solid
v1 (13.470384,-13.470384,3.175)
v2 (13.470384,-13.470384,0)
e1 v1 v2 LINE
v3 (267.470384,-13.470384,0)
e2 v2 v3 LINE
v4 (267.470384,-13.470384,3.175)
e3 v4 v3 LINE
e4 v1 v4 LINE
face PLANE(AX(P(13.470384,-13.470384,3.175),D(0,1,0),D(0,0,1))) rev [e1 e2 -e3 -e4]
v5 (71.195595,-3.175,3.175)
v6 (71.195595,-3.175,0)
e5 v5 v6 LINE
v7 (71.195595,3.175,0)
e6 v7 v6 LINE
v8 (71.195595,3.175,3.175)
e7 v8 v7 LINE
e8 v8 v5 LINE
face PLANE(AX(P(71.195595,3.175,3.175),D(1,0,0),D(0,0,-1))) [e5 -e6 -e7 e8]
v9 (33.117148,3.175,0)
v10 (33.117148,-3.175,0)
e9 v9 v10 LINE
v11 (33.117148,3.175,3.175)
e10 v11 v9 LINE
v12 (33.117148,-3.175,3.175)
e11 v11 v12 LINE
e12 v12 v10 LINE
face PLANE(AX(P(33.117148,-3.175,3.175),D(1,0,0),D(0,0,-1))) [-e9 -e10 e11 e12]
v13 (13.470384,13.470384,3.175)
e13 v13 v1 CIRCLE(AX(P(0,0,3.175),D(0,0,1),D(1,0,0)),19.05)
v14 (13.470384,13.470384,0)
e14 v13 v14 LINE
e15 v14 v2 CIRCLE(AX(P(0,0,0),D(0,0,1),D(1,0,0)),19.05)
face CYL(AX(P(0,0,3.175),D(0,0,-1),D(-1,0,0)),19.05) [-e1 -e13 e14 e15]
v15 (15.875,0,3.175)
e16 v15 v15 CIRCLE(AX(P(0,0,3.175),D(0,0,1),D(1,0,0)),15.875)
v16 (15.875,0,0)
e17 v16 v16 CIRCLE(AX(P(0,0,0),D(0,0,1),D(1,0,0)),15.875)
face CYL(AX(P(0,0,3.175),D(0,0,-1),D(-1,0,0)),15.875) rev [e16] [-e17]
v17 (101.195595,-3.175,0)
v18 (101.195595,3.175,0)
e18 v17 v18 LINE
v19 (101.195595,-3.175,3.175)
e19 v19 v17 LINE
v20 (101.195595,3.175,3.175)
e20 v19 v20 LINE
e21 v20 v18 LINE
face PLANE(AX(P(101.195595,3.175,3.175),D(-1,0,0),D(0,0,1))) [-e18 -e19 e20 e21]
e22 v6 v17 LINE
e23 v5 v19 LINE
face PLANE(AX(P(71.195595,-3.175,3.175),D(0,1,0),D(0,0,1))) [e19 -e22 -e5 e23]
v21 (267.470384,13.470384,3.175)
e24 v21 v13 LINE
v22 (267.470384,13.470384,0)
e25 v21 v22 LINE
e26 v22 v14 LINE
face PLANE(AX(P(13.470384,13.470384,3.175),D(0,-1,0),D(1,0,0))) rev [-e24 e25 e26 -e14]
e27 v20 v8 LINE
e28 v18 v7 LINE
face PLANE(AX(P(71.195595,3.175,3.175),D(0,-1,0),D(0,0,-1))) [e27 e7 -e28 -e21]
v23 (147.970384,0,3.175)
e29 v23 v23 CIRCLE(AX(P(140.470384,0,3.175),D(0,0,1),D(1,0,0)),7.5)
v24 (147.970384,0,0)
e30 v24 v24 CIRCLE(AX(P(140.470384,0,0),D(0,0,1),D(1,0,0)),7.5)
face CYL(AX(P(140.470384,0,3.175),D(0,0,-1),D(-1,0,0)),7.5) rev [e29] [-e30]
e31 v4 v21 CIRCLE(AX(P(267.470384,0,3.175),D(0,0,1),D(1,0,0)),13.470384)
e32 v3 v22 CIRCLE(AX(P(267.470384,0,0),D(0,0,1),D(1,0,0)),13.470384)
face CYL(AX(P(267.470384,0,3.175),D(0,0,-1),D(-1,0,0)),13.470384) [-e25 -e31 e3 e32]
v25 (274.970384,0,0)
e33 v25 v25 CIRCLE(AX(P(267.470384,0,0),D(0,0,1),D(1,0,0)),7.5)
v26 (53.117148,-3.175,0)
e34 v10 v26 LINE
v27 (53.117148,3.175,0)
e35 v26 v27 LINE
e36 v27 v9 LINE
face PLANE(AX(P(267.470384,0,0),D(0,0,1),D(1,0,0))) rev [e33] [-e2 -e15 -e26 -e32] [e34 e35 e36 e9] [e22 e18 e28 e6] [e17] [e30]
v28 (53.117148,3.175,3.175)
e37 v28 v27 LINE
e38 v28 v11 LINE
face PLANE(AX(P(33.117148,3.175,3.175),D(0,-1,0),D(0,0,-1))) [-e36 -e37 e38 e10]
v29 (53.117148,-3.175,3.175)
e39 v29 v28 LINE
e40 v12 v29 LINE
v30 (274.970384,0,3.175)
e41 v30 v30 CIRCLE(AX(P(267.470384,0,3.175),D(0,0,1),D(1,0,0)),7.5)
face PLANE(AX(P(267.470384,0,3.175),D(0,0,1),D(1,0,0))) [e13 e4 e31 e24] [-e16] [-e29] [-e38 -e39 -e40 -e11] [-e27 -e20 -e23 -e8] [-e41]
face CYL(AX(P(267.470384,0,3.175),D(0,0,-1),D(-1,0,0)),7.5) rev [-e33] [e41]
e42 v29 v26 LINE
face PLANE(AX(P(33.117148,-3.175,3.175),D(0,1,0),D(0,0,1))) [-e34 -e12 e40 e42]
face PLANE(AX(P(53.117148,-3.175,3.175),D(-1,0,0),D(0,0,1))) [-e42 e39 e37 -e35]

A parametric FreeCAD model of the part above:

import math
import FreeCAD as App
import Part
import Sketcher
Q = App.Units.Quantity


def add_polygon(sketch, points):
    """Adds a closed chain of lines whose ends are joined by coincident constraints."""
    first, n = sketch.GeometryCount, len(points)
    for a, b in zip(points, points[1:] + points[:1]):
        sketch.addGeometry(Part.LineSegment(App.Vector(*a, 0), App.Vector(*b, 0)), False)
    for i in range(n):
        sketch.addConstraint(Sketcher.Constraint("Coincident", first + i, 2, first + (i + 1) % n, 1))

doc = App.newDocument("Part")
body = doc.addObject("PartDesign::Body", "Body")

# Sketch on XY plane
sketch1 = body.newObject("Sketcher::SketchObject", "Sketch")
sketch1.AttachmentSupport = (doc.getObject("XY_Plane"), [""])
sketch1.MapMode = "FlatFace"
sketch1.addGeometry(Part.LineSegment(App.Vector(267, 13, 0), App.Vector(13, 13, 0)), False)  # 0
sketch1.addGeometry(Part.ArcOfCircle(Part.Circle(App.Vector(0, 0, 0), App.Vector(0, 0, 1), 19), math.radians(45), math.radians(315)), False)  # 1
sketch1.addGeometry(Part.LineSegment(App.Vector(13, -13, 0), App.Vector(267, -13, 0)), False)  # 2
sketch1.addGeometry(Part.ArcOfCircle(Part.Circle(App.Vector(267, 0, 0), App.Vector(0, 0, 1), 13), math.radians(-90), math.radians(90)), False)  # 3
sketch1.addGeometry(Part.Circle(App.Vector(267, 0, 0), App.Vector(0, 0, 1), 8), False)  # 4
sketch1.addGeometry(Part.Circle(App.Vector(140, 0, 0), App.Vector(0, 0, 1), 8), False)  # 5
add_polygon(sketch1, [(71, -3), (71, 3), (101, 3), (101, -3)])  # lines 6-9
add_polygon(sketch1, [(33, -3), (33, 3), (53, 3), (53, -3)])  # lines 10-13
sketch1.addGeometry(Part.Circle(App.Vector(0, 0, 0), App.Vector(0, 0, 1), 16), False)  # 14
sketch1.addConstraint([
    Sketcher.Constraint("Coincident", 0, 2, 1, 1),
    Sketcher.Constraint("Coincident", 1, 2, 2, 1),
    Sketcher.Constraint("Tangent", 2, 2, 3, 1),
    Sketcher.Constraint("Tangent", 3, 2, 0, 1),
    Sketcher.Constraint("Horizontal", 0),
    Sketcher.Constraint("Horizontal", 2),
    Sketcher.Constraint("Vertical", 6),
    Sketcher.Constraint("Horizontal", 7),
    Sketcher.Constraint("Vertical", 8),
    Sketcher.Constraint("Horizontal", 9),
    Sketcher.Constraint("Vertical", 10),
    Sketcher.Constraint("Horizontal", 11),
    Sketcher.Constraint("Vertical", 12),
    Sketcher.Constraint("Horizontal", 13),
    Sketcher.Constraint("Coincident", 1, 3, -1, 1),
    Sketcher.Constraint("Coincident", 14, 3, -1, 1),
    Sketcher.Constraint("Coincident", 4, 3, 3, 3),
    Sketcher.Constraint("Equal", 4, 5),
    Sketcher.Constraint("PointOnObject", 3, 3, -1),
    Sketcher.Constraint("PointOnObject", 5, 3, -1),
    Sketcher.Constraint("Horizontal", 7, 2, 10, 2),
    Sketcher.Constraint("Horizontal", 9, 2, 12, 2),
    Sketcher.Constraint("Diameter", 14, Q("1.25 in")),
    Sketcher.Constraint("DistanceX", 0, 2, 0, 1, Q("10 in")),
    Sketcher.Constraint("Radius", 1, Q("0.75 in")),
    Sketcher.Constraint("DistanceX", 5, 3, 3, 3, Q("5 in")),
    Sketcher.Constraint("DistanceY", 6, 1, 6, 2, Q("0.25 in")),
    Sketcher.Constraint("Diameter", 4, 15.0),
    Sketcher.Constraint("DistanceY", -1, 1, 6, 2, Q("0.125 in")),
    Sketcher.Constraint("DistanceX", 7, 1, 7, 2, 30.0),
    Sketcher.Constraint("DistanceX", 11, 1, 11, 2, 20.0),
    Sketcher.Constraint("Radius", 3, 13.470384),
    Sketcher.Constraint("DistanceX", 0, 2, 6, 2, 57.725211),
    Sketcher.Constraint("DistanceX", -1, 1, 10, 2, 33.117148),
])
pad1 = body.newObject("PartDesign::Pad", "Pad")
pad1.Profile = sketch1
pad1.Length = Q("0.125 in")

doc.recompute()
